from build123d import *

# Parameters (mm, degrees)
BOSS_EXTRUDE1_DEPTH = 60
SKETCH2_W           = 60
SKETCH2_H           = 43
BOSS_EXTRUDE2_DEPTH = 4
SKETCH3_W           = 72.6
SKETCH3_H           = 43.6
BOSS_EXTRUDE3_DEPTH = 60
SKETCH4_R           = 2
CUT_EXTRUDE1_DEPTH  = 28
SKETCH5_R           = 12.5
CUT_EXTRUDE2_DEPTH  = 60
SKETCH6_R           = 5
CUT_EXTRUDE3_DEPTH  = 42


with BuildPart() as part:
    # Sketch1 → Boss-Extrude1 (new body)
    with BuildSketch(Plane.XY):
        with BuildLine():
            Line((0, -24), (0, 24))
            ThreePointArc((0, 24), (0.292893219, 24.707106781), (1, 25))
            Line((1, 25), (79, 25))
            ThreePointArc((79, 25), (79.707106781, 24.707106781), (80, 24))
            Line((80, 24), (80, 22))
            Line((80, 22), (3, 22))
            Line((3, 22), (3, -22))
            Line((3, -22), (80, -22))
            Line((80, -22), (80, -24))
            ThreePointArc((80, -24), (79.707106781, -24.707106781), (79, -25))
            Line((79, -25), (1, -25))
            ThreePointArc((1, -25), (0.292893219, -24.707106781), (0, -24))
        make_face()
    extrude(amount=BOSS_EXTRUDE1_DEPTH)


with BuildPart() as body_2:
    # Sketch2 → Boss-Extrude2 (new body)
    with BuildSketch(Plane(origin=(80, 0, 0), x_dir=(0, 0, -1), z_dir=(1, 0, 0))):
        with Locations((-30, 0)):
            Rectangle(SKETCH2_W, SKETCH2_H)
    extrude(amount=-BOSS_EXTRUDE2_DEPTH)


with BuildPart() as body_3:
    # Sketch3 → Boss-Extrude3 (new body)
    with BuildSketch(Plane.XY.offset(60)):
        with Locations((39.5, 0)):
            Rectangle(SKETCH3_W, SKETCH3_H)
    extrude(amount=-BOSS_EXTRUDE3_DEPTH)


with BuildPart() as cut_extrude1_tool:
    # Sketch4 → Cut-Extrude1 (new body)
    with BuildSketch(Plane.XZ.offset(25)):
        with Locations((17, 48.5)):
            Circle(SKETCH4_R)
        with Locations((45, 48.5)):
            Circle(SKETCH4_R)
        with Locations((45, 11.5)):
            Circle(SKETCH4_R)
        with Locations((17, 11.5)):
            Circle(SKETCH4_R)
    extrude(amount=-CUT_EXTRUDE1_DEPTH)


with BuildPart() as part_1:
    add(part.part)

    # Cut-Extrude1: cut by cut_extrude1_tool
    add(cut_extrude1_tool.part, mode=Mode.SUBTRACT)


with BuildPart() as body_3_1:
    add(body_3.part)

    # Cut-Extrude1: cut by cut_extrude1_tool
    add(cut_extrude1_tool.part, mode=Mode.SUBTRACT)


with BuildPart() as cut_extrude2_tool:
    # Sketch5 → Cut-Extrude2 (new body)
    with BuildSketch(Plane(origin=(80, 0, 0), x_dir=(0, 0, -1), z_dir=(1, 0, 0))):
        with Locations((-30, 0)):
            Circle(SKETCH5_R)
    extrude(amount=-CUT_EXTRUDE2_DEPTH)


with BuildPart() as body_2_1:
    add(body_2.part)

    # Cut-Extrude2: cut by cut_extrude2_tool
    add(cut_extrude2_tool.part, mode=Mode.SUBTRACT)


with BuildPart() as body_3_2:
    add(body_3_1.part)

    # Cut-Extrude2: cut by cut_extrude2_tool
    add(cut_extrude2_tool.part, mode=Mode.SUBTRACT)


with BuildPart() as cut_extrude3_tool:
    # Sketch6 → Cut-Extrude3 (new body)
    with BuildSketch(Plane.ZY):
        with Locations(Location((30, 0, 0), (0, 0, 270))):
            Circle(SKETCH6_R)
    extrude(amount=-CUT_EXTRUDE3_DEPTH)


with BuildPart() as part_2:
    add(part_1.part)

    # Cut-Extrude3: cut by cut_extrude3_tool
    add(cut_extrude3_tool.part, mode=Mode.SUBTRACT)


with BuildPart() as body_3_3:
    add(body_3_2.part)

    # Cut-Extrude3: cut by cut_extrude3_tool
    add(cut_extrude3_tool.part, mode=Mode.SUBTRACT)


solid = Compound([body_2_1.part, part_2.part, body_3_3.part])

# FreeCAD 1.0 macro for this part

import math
import FreeCAD as App
import Part
import Sketcher
from FreeCAD import Vector

doc = App.newDocument("Part")
body = doc.addObject("PartDesign::Body", "Body")

sketch1 = doc.addObject("Sketcher::SketchObject", "Sketch")
body.addObject(sketch1)
sketch1.AttachmentSupport = (doc.XY_Plane, [""])
sketch1.MapMode = "FlatFace"
sketch1.addGeometry(Part.LineSegment(Vector(0, 24, 0), Vector(0, -24, 0)), False)
sketch1.addGeometry(Part.ArcOfCircle(Part.Circle(Vector(1, -24, 0), Vector(0, 0, 1), 1), math.radians(-180), math.radians(-90)), False)
sketch1.addGeometry(Part.LineSegment(Vector(1, -25, 0), Vector(79, -25, 0)), False)
sketch1.addGeometry(Part.ArcOfCircle(Part.Circle(Vector(79, -24, 0), Vector(0, 0, 1), 1), math.radians(-90), math.radians(0)), False)
sketch1.addGeometry(Part.LineSegment(Vector(80, -24, 0), Vector(80, -22, 0)), False)
sketch1.addGeometry(Part.LineSegment(Vector(80, -22, 0), Vector(3, -22, 0)), False)
sketch1.addGeometry(Part.LineSegment(Vector(3, -22, 0), Vector(3, 22, 0)), False)
sketch1.addGeometry(Part.LineSegment(Vector(3, 22, 0), Vector(80, 22, 0)), False)
sketch1.addGeometry(Part.LineSegment(Vector(80, 22, 0), Vector(80, 24, 0)), False)
sketch1.addGeometry(Part.ArcOfCircle(Part.Circle(Vector(79, 24, 0), Vector(0, 0, 1), 1), math.radians(0), math.radians(90)), False)
sketch1.addGeometry(Part.LineSegment(Vector(79, 25, 0), Vector(1, 25, 0)), False)
sketch1.addGeometry(Part.ArcOfCircle(Part.Circle(Vector(1, 24, 0), Vector(0, 0, 1), 1), math.radians(90), math.radians(180)), False)
sketch1.addConstraint(Sketcher.Constraint("Tangent", 0, 2, 1, 1))
sketch1.addConstraint(Sketcher.Constraint("Tangent", 1, 2, 2, 1))
sketch1.addConstraint(Sketcher.Constraint("Tangent", 2, 2, 3, 1))
sketch1.addConstraint(Sketcher.Constraint("Tangent", 3, 2, 4, 1))
sketch1.addConstraint(Sketcher.Constraint("Coincident", 4, 2, 5, 1))
sketch1.addConstraint(Sketcher.Constraint("Coincident", 5, 2, 6, 1))
sketch1.addConstraint(Sketcher.Constraint("Coincident", 6, 2, 7, 1))
sketch1.addConstraint(Sketcher.Constraint("Coincident", 7, 2, 8, 1))
sketch1.addConstraint(Sketcher.Constraint("Tangent", 8, 2, 9, 1))
sketch1.addConstraint(Sketcher.Constraint("Tangent", 9, 2, 10, 1))
sketch1.addConstraint(Sketcher.Constraint("Tangent", 10, 2, 11, 1))
sketch1.addConstraint(Sketcher.Constraint("Tangent", 11, 2, 0, 1))
sketch1.addConstraint(Sketcher.Constraint("Vertical", 0))
sketch1.addConstraint(Sketcher.Constraint("Horizontal", 2))
sketch1.addConstraint(Sketcher.Constraint("Vertical", 4))
sketch1.addConstraint(Sketcher.Constraint("Horizontal", 5))
sketch1.addConstraint(Sketcher.Constraint("Vertical", 6))
sketch1.addConstraint(Sketcher.Constraint("Horizontal", 7))
sketch1.addConstraint(Sketcher.Constraint("Vertical", 8))
sketch1.addConstraint(Sketcher.Constraint("Horizontal", 10))
sketch1.addConstraint(Sketcher.Constraint("Equal", 1, 3))
sketch1.addConstraint(Sketcher.Constraint("Equal", 3, 9))
sketch1.addConstraint(Sketcher.Constraint("Equal", 9, 11))
sketch1.addConstraint(Sketcher.Constraint("Symmetric", 0, 2, 11, 2, -1, 1))
sketch1.addConstraint(Sketcher.Constraint("Symmetric", 4, 2, 7, 2, -1))
sketch1.addConstraint(Sketcher.Constraint("Radius", 1, 1.0))
sketch1.addConstraint(Sketcher.Constraint("DistanceX", 2, 1, 2, 2, 78.0))
sketch1.addConstraint(Sketcher.Constraint("DistanceX", 5, 2, 5, 1, 77.0))
sketch1.addConstraint(Sketcher.Constraint("DistanceY", 0, 2, 0, 1, 48.0))
sketch1.addConstraint(Sketcher.Constraint("DistanceY", 4, 1, 4, 2, 2.0))
pad1 = doc.addObject("PartDesign::Pad", "Pad")
body.addObject(pad1)
pad1.Profile = sketch1
pad1.Length = 60
body2 = doc.addObject("PartDesign::Body", "Body001")

sketch2 = doc.addObject("Sketcher::SketchObject", "Sketch001")
body2.addObject(sketch2)
sketch2.AttachmentSupport = (doc.getObject("YZ_Plane001"), [""])
sketch2.MapMode = "FlatFace"
sketch2.AttachmentOffset = App.Placement(Vector(0, 0, 80), App.Rotation())
sketch2.addGeometry(Part.LineSegment(Vector(22, 60, 0), Vector(-22, 60, 0)), False)
sketch2.addGeometry(Part.LineSegment(Vector(-22, 60, 0), Vector(-22, 0, 0)), False)
sketch2.addGeometry(Part.LineSegment(Vector(-22, 0, 0), Vector(22, 0, 0)), False)
sketch2.addGeometry(Part.LineSegment(Vector(22, 0, 0), Vector(22, 60, 0)), False)
sketch2.addConstraint(Sketcher.Constraint("Coincident", 0, 2, 1, 1))
sketch2.addConstraint(Sketcher.Constraint("Coincident", 1, 2, 2, 1))
sketch2.addConstraint(Sketcher.Constraint("Coincident", 2, 2, 3, 1))
sketch2.addConstraint(Sketcher.Constraint("Coincident", 3, 2, 0, 1))
sketch2.addConstraint(Sketcher.Constraint("Horizontal", 0))
sketch2.addConstraint(Sketcher.Constraint("Vertical", 1))
sketch2.addConstraint(Sketcher.Constraint("Horizontal", 2))
sketch2.addConstraint(Sketcher.Constraint("Vertical", 3))
sketch2.addConstraint(Sketcher.Constraint("Symmetric", 1, 2, 2, 2, -1, 1))
sketch2.addConstraint(Sketcher.Constraint("DistanceX", 0, 2, 0, 1, 43.0))
sketch2.addConstraint(Sketcher.Constraint("DistanceY", 1, 2, 1, 1, 60.0))
pad2 = doc.addObject("PartDesign::Pad", "Pad001")
body2.addObject(pad2)
pad2.Profile = sketch2
pad2.Length = 4
pad2.Reversed = True
body3 = doc.addObject("PartDesign::Body", "Body002")

sketch3 = doc.addObject("Sketcher::SketchObject", "Sketch002")
body3.addObject(sketch3)
sketch3.AttachmentSupport = (doc.getObject("XY_Plane002"), [""])
sketch3.MapMode = "FlatFace"
sketch3.AttachmentOffset = App.Placement(Vector(0, 0, 60), App.Rotation())
sketch3.addGeometry(Part.LineSegment(Vector(3, 22, 0), Vector(3, -22, 0)), False)
sketch3.addGeometry(Part.LineSegment(Vector(3, -22, 0), Vector(76, -22, 0)), False)
sketch3.addGeometry(Part.LineSegment(Vector(76, -22, 0), Vector(76, 22, 0)), False)
sketch3.addGeometry(Part.LineSegment(Vector(76, 22, 0), Vector(3, 22, 0)), False)
sketch3.addConstraint(Sketcher.Constraint("Coincident", 0, 2, 1, 1))
sketch3.addConstraint(Sketcher.Constraint("Coincident", 1, 2, 2, 1))
sketch3.addConstraint(Sketcher.Constraint("Coincident", 2, 2, 3, 1))
sketch3.addConstraint(Sketcher.Constraint("Coincident", 3, 2, 0, 1))
sketch3.addConstraint(Sketcher.Constraint("Vertical", 0))
sketch3.addConstraint(Sketcher.Constraint("Horizontal", 1))
sketch3.addConstraint(Sketcher.Constraint("Vertical", 2))
sketch3.addConstraint(Sketcher.Constraint("Horizontal", 3))
sketch3.addConstraint(Sketcher.Constraint("DistanceX", 1, 1, 1, 2, 72.6))
sketch3.addConstraint(Sketcher.Constraint("DistanceY", 0, 2, 0, 1, 43.6))
sketch3.addConstraint(Sketcher.Constraint("DistanceX", -1, 1, 0, 2, 3.2))
sketch3.addConstraint(Sketcher.Constraint("DistanceY", 0, 2, -1, 1, 21.8))
pad3 = doc.addObject("PartDesign::Pad", "Pad002")
body3.addObject(pad3)
pad3.Profile = sketch3
pad3.Length = 60
pad3.Reversed = True
body4 = doc.addObject("PartDesign::Body", "Body003")
body4.AllowCompound = True

sketch4 = doc.addObject("Sketcher::SketchObject", "Sketch003")
body4.addObject(sketch4)
sketch4.AttachmentSupport = (doc.getObject("XZ_Plane003"), [""])
sketch4.MapMode = "FlatFace"
sketch4.AttachmentOffset = App.Placement(Vector(0, 0, 25), App.Rotation())
sketch4.addGeometry(Part.Circle(Vector(17, 48.5, 0), Vector(0, 0, 1), 2), False)
sketch4.addGeometry(Part.Circle(Vector(45, 48.5, 0), Vector(0, 0, 1), 2), False)
sketch4.addGeometry(Part.Circle(Vector(45, 11.5, 0), Vector(0, 0, 1), 2), False)
sketch4.addGeometry(Part.Circle(Vector(17, 11.5, 0), Vector(0, 0, 1), 2), False)
sketch4.addConstraint(Sketcher.Constraint("Equal", 0, 1))
sketch4.addConstraint(Sketcher.Constraint("Equal", 1, 2))
sketch4.addConstraint(Sketcher.Constraint("Equal", 2, 3))
sketch4.addConstraint(Sketcher.Constraint("Horizontal", 0, 3, 1, 3))
sketch4.addConstraint(Sketcher.Constraint("Horizontal", 2, 3, 3, 3))
sketch4.addConstraint(Sketcher.Constraint("Vertical", 1, 3, 2, 3))
sketch4.addConstraint(Sketcher.Constraint("Vertical", 0, 3, 3, 3))
sketch4.addConstraint(Sketcher.Constraint("Diameter", 0, 4.0))
sketch4.addConstraint(Sketcher.Constraint("DistanceX", -1, 1, 0, 3, 17.0))
sketch4.addConstraint(Sketcher.Constraint("DistanceX", -1, 1, 1, 3, 45.0))
sketch4.addConstraint(Sketcher.Constraint("DistanceY", 2, 3, 1, 3, 37.0))
sketch4.addConstraint(Sketcher.Constraint("DistanceY", -1, 1, 0, 3, 48.5))
pad4 = doc.addObject("PartDesign::Pad", "Pad003")
body4.addObject(pad4)
pad4.Profile = sketch4
pad4.Length = 28
pad4.Reversed = True
doc.recompute()

body5 = doc.addObject("PartDesign::Body", "Body004")
body5.BaseFeature = body4
boolean = doc.addObject("PartDesign::Boolean", "Boolean")
body.addObject(boolean)
boolean.Type = "Cut"
boolean.addObjects([body5])
doc.recompute()

boolean2 = doc.addObject("PartDesign::Boolean", "Boolean001")
body3.addObject(boolean2)
boolean2.Type = "Cut"
boolean2.addObjects([body4])
body6 = doc.addObject("PartDesign::Body", "Body005")

sketch5 = doc.addObject("Sketcher::SketchObject", "Sketch004")
body6.addObject(sketch5)
sketch5.AttachmentSupport = (doc.getObject("YZ_Plane005"), [""])
sketch5.MapMode = "FlatFace"
sketch5.AttachmentOffset = App.Placement(Vector(0, 0, 80), App.Rotation())
sketch5.addGeometry(Part.Circle(Vector(0, 30, 0), Vector(0, 0, 1), 12), False)
sketch5.addConstraint(Sketcher.Constraint("PointOnObject", 0, 3, -2))
sketch5.addConstraint(Sketcher.Constraint("Diameter", 0, 25.0))
sketch5.addConstraint(Sketcher.Constraint("DistanceY", -1, 1, 0, 3, 30.0))
pad5 = doc.addObject("PartDesign::Pad", "Pad004")
body6.addObject(pad5)
pad5.Profile = sketch5
pad5.Length = 60
pad5.Reversed = True
doc.recompute()

body7 = doc.addObject("PartDesign::Body", "Body006")
body7.BaseFeature = body6
boolean3 = doc.addObject("PartDesign::Boolean", "Boolean002")
body2.addObject(boolean3)
boolean3.Type = "Cut"
boolean3.addObjects([body7])
doc.recompute()

boolean4 = doc.addObject("PartDesign::Boolean", "Boolean003")
body3.addObject(boolean4)
boolean4.Type = "Cut"
boolean4.addObjects([body6])
body8 = doc.addObject("PartDesign::Body", "Body007")

sketch6 = doc.addObject("Sketcher::SketchObject", "Sketch005")
body8.addObject(sketch6)
sketch6.AttachmentSupport = (doc.getObject("YZ_Plane007"), [""])
sketch6.MapMode = "FlatFace"
sketch6.addGeometry(Part.Circle(Vector(0, 30, 0), Vector(0, 0, 1), 5), False)
sketch6.addConstraint(Sketcher.Constraint("PointOnObject", 0, 3, -2))
sketch6.addConstraint(Sketcher.Constraint("Diameter", 0, 10.0))
sketch6.addConstraint(Sketcher.Constraint("DistanceY", -1, 1, 0, 3, 30.0))
pad6 = doc.addObject("PartDesign::Pad", "Pad005")
body8.addObject(pad6)
pad6.Profile = sketch6
pad6.Length = 42
doc.recompute()

body9 = doc.addObject("PartDesign::Body", "Body008")
body9.BaseFeature = body8
boolean5 = doc.addObject("PartDesign::Boolean", "Boolean004")
body.addObject(boolean5)
boolean5.Type = "Cut"
boolean5.addObjects([body9])
doc.recompute()

boolean6 = doc.addObject("PartDesign::Boolean", "Boolean005")
body3.addObject(boolean6)
boolean6.Type = "Cut"
boolean6.addObjects([body8])

doc.recompute()
